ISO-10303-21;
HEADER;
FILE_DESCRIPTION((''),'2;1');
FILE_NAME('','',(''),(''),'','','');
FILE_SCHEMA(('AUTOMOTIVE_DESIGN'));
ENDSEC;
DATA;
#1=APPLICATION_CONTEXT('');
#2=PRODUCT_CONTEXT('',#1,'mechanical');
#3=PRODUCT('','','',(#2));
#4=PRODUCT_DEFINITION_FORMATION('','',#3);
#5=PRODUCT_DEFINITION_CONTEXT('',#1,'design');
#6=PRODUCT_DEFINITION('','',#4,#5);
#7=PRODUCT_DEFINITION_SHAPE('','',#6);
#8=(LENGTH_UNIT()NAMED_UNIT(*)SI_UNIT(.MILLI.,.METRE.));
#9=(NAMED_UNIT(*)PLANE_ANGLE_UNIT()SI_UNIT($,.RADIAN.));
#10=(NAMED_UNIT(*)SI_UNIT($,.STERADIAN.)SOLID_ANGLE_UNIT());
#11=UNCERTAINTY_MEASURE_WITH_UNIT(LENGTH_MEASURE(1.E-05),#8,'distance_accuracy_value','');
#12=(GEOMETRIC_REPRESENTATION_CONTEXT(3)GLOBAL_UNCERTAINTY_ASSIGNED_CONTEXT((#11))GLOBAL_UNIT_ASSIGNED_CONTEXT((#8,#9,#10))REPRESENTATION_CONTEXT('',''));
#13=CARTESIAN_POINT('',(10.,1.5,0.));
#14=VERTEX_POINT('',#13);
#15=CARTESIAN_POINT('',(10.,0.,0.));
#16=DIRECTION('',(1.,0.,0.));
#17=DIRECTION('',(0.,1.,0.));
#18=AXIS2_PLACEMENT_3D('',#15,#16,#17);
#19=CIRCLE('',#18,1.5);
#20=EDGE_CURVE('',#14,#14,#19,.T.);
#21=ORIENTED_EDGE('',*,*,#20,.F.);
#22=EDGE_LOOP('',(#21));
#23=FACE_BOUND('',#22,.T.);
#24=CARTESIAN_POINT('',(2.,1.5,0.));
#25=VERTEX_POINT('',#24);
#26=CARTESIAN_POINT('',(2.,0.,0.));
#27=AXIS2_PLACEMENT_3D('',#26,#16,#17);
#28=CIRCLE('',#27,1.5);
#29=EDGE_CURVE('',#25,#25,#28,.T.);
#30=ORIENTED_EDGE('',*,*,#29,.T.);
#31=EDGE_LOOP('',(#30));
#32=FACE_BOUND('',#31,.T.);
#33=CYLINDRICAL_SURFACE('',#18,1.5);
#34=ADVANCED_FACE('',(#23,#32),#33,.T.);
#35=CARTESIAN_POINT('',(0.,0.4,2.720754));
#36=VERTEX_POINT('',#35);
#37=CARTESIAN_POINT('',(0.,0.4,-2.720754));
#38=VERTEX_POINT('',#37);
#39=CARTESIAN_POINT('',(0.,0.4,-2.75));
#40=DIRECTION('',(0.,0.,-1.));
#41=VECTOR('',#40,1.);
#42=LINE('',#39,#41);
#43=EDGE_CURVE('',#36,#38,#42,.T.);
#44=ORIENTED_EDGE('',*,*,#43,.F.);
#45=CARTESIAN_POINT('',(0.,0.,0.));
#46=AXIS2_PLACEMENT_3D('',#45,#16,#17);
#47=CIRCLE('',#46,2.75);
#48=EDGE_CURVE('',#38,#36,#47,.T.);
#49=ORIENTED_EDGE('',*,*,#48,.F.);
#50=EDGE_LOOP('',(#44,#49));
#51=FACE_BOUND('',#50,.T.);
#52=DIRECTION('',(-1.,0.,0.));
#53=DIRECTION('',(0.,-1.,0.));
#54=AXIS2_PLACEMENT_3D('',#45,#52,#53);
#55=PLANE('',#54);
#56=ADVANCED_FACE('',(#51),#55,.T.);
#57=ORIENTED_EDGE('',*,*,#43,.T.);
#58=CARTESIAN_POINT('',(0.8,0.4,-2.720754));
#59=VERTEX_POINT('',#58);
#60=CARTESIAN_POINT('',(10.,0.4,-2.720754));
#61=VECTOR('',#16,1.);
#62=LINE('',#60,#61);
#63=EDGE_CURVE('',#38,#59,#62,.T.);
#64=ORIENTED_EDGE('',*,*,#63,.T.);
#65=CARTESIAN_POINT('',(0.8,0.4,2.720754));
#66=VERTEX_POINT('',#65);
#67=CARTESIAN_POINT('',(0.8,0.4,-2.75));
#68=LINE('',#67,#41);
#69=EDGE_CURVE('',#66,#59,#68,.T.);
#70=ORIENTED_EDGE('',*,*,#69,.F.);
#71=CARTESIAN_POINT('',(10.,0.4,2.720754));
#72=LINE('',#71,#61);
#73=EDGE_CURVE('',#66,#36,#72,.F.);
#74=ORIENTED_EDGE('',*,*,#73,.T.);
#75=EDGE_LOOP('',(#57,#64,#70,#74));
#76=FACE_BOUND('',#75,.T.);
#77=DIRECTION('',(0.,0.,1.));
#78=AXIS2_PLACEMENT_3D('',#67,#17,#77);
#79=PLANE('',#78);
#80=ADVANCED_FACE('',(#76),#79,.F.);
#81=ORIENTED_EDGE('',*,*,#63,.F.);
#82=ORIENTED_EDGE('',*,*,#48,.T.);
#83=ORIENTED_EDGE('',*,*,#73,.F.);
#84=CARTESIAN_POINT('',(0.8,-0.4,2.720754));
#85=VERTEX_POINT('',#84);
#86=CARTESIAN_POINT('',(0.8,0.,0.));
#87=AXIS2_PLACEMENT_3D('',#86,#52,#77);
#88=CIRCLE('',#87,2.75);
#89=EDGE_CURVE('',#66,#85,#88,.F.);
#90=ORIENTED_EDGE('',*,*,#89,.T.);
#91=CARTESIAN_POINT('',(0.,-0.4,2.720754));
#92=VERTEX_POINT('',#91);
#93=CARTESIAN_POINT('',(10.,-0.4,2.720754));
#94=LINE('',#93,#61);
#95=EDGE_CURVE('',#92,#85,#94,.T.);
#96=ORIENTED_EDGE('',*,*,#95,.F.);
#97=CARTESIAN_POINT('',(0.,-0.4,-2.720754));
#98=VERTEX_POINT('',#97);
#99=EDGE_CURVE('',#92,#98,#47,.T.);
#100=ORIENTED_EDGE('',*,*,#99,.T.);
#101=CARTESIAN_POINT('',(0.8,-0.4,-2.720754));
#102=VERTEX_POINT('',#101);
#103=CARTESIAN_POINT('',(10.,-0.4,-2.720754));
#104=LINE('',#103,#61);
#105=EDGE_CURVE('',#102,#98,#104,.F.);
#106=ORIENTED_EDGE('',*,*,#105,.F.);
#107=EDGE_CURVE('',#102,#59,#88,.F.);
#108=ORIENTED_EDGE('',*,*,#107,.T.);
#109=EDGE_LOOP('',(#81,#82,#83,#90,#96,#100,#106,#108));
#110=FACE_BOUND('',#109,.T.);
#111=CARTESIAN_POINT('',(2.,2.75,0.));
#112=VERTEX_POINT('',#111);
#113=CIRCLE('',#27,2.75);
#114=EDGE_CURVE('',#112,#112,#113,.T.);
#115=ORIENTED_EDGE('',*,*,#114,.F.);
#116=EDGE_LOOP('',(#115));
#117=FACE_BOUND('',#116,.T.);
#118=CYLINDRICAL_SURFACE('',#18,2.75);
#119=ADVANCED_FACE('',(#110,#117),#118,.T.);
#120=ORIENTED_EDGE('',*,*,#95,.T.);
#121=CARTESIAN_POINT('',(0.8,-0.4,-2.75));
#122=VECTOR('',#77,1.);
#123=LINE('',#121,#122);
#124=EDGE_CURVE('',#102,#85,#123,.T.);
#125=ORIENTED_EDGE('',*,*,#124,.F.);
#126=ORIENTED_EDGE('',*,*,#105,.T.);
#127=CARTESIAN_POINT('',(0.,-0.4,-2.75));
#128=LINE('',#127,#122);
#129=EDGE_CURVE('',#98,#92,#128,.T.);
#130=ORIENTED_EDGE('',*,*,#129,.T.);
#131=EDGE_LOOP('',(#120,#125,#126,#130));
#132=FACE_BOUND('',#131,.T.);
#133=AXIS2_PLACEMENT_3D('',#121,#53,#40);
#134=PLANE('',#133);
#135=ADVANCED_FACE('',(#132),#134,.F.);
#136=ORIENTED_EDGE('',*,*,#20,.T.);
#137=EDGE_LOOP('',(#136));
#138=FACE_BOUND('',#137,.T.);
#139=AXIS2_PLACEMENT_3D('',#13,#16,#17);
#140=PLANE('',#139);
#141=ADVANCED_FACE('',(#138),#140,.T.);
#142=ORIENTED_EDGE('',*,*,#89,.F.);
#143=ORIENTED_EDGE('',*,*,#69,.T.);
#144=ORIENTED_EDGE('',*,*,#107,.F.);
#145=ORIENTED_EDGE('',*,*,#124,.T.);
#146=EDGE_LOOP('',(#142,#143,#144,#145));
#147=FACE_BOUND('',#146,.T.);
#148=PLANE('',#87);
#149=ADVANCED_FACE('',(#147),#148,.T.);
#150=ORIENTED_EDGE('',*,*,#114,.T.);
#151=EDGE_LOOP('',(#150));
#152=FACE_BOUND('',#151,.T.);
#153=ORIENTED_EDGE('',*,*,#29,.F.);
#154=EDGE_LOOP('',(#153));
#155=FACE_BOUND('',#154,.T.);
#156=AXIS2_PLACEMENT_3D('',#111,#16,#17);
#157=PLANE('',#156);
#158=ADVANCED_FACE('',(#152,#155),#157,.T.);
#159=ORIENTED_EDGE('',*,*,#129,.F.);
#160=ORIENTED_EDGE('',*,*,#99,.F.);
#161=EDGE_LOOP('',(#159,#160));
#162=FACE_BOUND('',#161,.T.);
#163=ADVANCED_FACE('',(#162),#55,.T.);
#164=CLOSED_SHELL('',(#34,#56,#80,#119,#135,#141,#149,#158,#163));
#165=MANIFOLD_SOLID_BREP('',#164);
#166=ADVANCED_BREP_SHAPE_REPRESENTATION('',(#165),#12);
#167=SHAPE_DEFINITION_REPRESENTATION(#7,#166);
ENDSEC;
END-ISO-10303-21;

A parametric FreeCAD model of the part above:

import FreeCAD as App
import Part
import Sketcher

V = App.Vector
Q = App.Units.Quantity

doc = App.newDocument("Part")
body = doc.addObject("PartDesign::Body", "Body")

# Sketch on XY plane
sketch1 = body.newObject("Sketcher::SketchObject", "Sketch")
sketch1.AttachmentSupport = (doc.getObject("XY_Plane"), [""])
sketch1.MapMode = "FlatFace"
sketch1.addGeometry(Part.LineSegment(V(0, 2.8, 0), V(0, 0, 0)), False)
sketch1.addGeometry(Part.LineSegment(V(0, 0, 0), V(10, 0, 0)), False)
sketch1.addGeometry(Part.LineSegment(V(10, 0, 0), V(10, 1.5, 0)), False)
sketch1.addGeometry(Part.LineSegment(V(10, 1.5, 0), V(2, 1.5, 0)), False)
sketch1.addGeometry(Part.LineSegment(V(2, 1.5, 0), V(2, 2.8, 0)), False)
sketch1.addGeometry(Part.LineSegment(V(2, 2.8, 0), V(0, 2.8, 0)), False)
sketch1.addConstraint(Sketcher.Constraint("Coincident", 0, 2, 1, 1))
sketch1.addConstraint(Sketcher.Constraint("Coincident", 1, 2, 2, 1))
sketch1.addConstraint(Sketcher.Constraint("Coincident", 2, 2, 3, 1))
sketch1.addConstraint(Sketcher.Constraint("Coincident", 3, 2, 4, 1))
sketch1.addConstraint(Sketcher.Constraint("Coincident", 4, 2, 5, 1))
sketch1.addConstraint(Sketcher.Constraint("Coincident", 5, 2, 0, 1))
sketch1.addConstraint(Sketcher.Constraint("Vertical", 0))
sketch1.addConstraint(Sketcher.Constraint("Horizontal", 1))
sketch1.addConstraint(Sketcher.Constraint("Vertical", 2))
sketch1.addConstraint(Sketcher.Constraint("Horizontal", 3))
sketch1.addConstraint(Sketcher.Constraint("Vertical", 4))
sketch1.addConstraint(Sketcher.Constraint("Horizontal", 5))
sketch1.addConstraint(Sketcher.Constraint("Coincident", 0, 2, -1, 1))
sketch1.addConstraint(Sketcher.Constraint("DistanceX", 1, 1, 1, 2, Q("10 mm")))
sketch1.addConstraint(Sketcher.Constraint("DistanceX", 3, 2, 3, 1, Q("8 mm")))
sketch1.addConstraint(Sketcher.Constraint("DistanceY", 2, 1, 2, 2, Q("1.5 mm")))
sketch1.addConstraint(Sketcher.Constraint("DistanceY", 0, 2, 0, 1, Q("2.75 mm")))
revolution = body.newObject("PartDesign::Revolution", "Revolution")
revolution.Profile = sketch1
revolution.ReferenceAxis = (sketch1, ["H_Axis"])
revolution.Angle = 360

# Sketch on YZ plane
sketch2 = body.newObject("Sketcher::SketchObject", "Sketch001")
sketch2.AttachmentSupport = (doc.getObject("YZ_Plane"), [""])
sketch2.MapMode = "FlatFace"
sketch2.addGeometry(Part.LineSegment(V(0.4, -2.8, 0), V(-0.4, -2.8, 0)), False)
sketch2.addGeometry(Part.LineSegment(V(-0.4, -2.8, 0), V(-0.4, 2.8, 0)), False)
sketch2.addGeometry(Part.LineSegment(V(-0.4, 2.8, 0), V(0.4, 2.8, 0)), False)
sketch2.addGeometry(Part.LineSegment(V(0.4, 2.8, 0), V(0.4, -2.8, 0)), False)
sketch2.addConstraint(Sketcher.Constraint("Coincident", 0, 2, 1, 1))
sketch2.addConstraint(Sketcher.Constraint("Coincident", 1, 2, 2, 1))
sketch2.addConstraint(Sketcher.Constraint("Coincident", 2, 2, 3, 1))
sketch2.addConstraint(Sketcher.Constraint("Coincident", 3, 2, 0, 1))
sketch2.addConstraint(Sketcher.Constraint("Horizontal", 0))
sketch2.addConstraint(Sketcher.Constraint("Vertical", 1))
sketch2.addConstraint(Sketcher.Constraint("Horizontal", 2))
sketch2.addConstraint(Sketcher.Constraint("Vertical", 3))
sketch2.addConstraint(Sketcher.Constraint("Symmetric", 0, 2, 2, 2, -1, 1))
sketch2.addConstraint(Sketcher.Constraint("DistanceX", 0, 2, 0, 1, Q("0.8 mm")))
sketch2.addConstraint(Sketcher.Constraint("DistanceY", 1, 1, 1, 2, Q("5.5 mm")))
pocket1 = body.newObject("PartDesign::Pocket", "Pocket")
pocket1.Profile = sketch2
pocket1.Length = 0.8
pocket1.Reversed = True

doc.recompute()
